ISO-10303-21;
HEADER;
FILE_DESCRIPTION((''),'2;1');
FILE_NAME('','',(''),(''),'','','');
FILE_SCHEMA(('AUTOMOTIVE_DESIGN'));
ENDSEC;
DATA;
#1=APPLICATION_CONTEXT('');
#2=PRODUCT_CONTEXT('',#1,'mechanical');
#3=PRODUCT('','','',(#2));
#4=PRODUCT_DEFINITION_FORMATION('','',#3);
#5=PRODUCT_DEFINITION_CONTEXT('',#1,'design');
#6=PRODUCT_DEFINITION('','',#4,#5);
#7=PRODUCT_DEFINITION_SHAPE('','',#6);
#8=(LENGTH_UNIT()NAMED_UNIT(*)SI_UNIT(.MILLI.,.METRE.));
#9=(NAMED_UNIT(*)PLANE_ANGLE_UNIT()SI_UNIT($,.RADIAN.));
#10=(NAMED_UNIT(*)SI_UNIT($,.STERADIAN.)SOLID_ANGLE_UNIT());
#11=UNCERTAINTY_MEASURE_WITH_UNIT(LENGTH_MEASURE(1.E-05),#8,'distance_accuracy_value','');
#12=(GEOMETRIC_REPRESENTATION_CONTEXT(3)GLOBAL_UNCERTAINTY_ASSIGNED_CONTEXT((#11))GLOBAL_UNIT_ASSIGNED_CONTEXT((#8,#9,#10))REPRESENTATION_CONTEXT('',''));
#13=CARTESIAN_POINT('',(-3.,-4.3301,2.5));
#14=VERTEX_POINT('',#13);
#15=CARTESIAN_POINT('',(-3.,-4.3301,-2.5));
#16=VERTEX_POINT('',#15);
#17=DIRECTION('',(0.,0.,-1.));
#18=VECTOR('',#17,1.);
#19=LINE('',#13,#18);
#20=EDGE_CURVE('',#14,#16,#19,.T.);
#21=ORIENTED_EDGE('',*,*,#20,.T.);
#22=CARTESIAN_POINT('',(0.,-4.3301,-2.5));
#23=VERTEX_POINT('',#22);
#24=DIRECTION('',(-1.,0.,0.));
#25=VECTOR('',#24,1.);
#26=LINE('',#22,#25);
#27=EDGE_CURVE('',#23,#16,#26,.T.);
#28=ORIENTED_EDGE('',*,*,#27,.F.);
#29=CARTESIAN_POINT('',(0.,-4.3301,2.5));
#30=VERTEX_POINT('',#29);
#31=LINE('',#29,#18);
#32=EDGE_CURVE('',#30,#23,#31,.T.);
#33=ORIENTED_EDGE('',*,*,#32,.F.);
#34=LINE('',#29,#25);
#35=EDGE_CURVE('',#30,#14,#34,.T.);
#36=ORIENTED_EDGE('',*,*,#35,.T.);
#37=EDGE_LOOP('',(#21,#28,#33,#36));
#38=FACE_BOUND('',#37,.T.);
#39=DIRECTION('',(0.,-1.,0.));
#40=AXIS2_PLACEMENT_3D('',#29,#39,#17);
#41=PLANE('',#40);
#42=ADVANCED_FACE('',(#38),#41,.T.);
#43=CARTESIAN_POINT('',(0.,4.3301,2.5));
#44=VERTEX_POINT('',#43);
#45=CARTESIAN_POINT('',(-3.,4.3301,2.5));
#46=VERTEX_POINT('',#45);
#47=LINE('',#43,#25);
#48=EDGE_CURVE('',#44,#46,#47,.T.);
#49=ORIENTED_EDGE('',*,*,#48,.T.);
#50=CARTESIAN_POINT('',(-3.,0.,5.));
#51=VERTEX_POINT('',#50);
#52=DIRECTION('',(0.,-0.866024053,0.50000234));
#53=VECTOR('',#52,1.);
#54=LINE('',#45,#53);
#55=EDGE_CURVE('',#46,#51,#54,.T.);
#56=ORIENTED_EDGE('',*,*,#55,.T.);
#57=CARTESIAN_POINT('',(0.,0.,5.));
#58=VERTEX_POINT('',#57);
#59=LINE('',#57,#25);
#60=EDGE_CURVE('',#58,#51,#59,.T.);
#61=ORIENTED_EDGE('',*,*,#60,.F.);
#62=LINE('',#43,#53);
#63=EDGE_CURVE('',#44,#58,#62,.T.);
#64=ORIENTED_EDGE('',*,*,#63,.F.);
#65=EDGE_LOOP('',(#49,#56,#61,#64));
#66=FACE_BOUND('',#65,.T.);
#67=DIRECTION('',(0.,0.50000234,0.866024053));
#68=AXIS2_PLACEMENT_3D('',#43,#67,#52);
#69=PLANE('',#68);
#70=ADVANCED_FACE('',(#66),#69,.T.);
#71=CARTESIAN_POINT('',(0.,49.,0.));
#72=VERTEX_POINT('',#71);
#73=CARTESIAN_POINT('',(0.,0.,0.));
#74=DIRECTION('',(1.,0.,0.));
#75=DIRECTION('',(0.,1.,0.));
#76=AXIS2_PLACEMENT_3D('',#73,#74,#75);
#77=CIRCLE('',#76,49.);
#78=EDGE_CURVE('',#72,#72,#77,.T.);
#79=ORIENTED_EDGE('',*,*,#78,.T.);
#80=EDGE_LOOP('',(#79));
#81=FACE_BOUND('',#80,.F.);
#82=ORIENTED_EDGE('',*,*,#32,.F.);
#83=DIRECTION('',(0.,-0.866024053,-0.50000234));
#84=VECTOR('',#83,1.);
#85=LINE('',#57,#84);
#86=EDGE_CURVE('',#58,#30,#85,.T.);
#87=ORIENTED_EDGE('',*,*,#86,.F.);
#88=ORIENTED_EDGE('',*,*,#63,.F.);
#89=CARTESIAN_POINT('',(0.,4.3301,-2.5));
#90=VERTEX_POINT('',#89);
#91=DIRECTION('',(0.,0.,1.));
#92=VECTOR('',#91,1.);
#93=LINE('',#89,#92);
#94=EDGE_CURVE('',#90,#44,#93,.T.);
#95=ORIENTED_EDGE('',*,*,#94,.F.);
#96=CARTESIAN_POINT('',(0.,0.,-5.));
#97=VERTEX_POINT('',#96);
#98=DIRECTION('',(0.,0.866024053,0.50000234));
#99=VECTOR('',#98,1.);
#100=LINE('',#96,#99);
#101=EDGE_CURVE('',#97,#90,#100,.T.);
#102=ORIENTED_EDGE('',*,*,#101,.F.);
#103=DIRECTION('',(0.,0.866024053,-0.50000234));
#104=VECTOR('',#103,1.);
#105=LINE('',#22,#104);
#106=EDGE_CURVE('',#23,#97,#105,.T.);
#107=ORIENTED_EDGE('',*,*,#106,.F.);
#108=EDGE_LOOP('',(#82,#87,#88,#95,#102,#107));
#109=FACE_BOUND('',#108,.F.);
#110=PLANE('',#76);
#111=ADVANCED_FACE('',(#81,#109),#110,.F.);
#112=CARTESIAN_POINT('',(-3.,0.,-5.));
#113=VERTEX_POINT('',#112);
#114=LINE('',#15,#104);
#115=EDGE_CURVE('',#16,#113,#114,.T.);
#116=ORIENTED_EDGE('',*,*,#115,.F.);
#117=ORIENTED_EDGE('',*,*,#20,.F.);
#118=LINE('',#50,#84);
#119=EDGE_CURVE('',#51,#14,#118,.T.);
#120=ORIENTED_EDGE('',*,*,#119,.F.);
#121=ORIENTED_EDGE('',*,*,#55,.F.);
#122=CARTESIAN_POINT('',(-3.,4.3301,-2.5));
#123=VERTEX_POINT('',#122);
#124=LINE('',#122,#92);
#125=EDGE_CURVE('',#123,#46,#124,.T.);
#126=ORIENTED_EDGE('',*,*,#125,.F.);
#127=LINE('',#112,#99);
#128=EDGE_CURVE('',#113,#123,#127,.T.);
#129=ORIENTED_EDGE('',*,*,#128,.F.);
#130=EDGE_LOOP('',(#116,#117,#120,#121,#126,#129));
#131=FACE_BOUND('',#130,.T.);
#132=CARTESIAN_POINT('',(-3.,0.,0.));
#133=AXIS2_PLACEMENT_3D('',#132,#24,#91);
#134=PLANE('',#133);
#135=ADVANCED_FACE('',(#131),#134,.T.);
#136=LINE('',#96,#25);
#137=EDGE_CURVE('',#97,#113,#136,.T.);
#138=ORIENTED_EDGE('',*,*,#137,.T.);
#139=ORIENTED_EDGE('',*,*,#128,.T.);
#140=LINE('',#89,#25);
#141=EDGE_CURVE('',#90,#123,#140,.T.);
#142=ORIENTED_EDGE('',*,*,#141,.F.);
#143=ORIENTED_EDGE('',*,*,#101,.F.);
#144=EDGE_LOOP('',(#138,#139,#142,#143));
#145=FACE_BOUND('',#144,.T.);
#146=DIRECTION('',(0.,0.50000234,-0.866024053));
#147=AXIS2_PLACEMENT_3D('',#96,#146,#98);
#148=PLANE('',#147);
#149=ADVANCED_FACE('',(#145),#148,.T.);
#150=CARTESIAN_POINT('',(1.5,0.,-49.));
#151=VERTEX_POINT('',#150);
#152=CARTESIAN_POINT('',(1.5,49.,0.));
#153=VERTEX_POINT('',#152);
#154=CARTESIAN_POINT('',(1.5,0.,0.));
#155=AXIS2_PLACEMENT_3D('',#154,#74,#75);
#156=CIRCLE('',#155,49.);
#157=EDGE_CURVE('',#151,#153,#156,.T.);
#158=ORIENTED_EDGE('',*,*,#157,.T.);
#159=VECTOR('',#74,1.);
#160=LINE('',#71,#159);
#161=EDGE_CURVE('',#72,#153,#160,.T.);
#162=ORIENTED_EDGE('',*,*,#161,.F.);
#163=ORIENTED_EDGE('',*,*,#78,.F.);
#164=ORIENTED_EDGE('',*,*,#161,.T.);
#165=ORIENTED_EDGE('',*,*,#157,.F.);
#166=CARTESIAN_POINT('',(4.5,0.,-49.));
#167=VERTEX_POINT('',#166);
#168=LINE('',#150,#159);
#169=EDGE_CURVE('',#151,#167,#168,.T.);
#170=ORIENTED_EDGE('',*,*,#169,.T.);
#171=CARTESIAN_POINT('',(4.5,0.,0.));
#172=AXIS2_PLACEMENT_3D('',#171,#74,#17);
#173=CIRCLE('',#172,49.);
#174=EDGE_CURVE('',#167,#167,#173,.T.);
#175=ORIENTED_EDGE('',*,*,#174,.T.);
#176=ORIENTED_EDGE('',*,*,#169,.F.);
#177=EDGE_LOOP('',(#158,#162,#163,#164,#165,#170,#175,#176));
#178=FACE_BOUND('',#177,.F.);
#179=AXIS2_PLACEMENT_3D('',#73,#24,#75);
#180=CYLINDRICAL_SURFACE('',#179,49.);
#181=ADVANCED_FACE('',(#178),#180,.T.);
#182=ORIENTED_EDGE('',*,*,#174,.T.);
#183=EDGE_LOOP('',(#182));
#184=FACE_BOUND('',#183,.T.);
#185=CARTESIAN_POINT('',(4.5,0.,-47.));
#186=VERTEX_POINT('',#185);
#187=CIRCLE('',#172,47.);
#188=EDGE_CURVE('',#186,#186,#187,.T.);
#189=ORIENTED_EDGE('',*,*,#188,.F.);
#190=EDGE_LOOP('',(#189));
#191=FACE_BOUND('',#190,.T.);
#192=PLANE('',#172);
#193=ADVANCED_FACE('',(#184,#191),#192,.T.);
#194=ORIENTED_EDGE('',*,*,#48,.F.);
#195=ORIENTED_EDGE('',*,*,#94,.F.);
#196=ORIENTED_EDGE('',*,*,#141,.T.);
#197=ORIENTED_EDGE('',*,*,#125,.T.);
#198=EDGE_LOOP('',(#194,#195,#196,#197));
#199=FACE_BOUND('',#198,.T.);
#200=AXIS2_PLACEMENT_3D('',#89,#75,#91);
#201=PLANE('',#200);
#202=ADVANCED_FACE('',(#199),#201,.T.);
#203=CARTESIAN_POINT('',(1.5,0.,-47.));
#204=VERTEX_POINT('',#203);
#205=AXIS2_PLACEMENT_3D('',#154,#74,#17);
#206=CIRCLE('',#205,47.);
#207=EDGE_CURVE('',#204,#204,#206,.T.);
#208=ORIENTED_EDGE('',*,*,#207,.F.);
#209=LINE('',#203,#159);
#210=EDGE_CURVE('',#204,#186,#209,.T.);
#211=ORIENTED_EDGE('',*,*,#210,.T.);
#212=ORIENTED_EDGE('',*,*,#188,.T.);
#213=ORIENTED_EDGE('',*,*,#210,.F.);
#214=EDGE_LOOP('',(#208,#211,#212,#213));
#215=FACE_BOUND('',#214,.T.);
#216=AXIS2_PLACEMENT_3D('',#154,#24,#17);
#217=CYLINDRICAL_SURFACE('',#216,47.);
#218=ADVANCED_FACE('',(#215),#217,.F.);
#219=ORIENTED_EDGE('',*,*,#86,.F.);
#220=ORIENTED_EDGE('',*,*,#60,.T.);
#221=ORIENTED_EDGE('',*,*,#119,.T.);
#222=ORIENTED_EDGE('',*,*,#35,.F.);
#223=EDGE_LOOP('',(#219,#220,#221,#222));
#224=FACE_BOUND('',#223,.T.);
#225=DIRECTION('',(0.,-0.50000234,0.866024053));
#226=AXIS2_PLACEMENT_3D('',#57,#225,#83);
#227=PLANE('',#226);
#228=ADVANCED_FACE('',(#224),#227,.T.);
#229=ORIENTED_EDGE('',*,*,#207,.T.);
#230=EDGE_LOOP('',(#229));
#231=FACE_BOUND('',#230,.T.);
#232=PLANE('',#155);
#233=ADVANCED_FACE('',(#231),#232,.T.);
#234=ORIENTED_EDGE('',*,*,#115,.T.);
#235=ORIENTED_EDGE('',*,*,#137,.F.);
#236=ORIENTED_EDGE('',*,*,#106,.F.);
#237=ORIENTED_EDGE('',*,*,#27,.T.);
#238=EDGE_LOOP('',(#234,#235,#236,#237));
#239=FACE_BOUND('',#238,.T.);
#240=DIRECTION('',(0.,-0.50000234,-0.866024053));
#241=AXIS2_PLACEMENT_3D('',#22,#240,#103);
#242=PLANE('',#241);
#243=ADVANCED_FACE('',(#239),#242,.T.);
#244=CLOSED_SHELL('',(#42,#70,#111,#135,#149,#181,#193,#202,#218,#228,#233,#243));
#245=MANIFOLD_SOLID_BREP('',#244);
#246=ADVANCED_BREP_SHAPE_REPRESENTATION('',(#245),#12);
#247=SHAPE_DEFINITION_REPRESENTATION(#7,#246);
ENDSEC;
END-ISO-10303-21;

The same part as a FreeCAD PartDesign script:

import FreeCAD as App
import Part
import Sketcher
from FreeCAD import Vector
Q = App.Units.Quantity


def add_polygon(sketch, points):
    """Adds a closed chain of lines whose ends are joined by coincident constraints."""
    first, n = sketch.GeometryCount, len(points)
    for a, b in zip(points, points[1:] + points[:1]):
        sketch.addGeometry(Part.LineSegment(App.Vector(*a, 0), App.Vector(*b, 0)), False)
    for i in range(n):
        sketch.addConstraint(Sketcher.Constraint("Coincident", first + i, 2, first + (i + 1) % n, 1))

doc = App.newDocument("Part")
body = doc.addObject("PartDesign::Body", "Body")

sketch1 = body.newObject("Sketcher::SketchObject", "Sketch")
sketch1.AttachmentSupport = (doc.getObject("YZ_Plane"), [""])
sketch1.MapMode = "FlatFace"
sketch1.addGeometry(Part.Circle(Vector(0, 0, 0), Vector(0, 0, 1), 49), False)
sketch1.addConstraint([
    Sketcher.Constraint("Coincident", 0, 3, -1, 1),
    Sketcher.Constraint("Diameter", 0, 98.0),
])
pad1 = body.newObject("PartDesign::Pad", "Pad")
pad1.Profile = sketch1
pad1.Length = 1.5

sketch2 = body.newObject("Sketcher::SketchObject", "Sketch001")
sketch2.AttachmentSupport = (doc.getObject("YZ_Plane"), [""])
sketch2.MapMode = "FlatFace"
sketch2.AttachmentOffset = App.Placement(Vector(0, 0, 1.5), App.Rotation())
sketch2.addGeometry([
    Part.Circle(Vector(0, 0, 0), Vector(0, 0, 1), 49),
    Part.Circle(Vector(0, 0, 0), Vector(0, 0, 1), 47),
], False)
sketch2.addConstraint([
    Sketcher.Constraint("Coincident", 0, 3, -1, 1),
    Sketcher.Constraint("Coincident", 1, 3, -1, 1),
    Sketcher.Constraint("Diameter", 0, 98.0),
    Sketcher.Constraint("Diameter", 1, 94.0),
])
pad2 = body.newObject("PartDesign::Pad", "Pad001")
pad2.Profile = sketch2
pad2.Length = 3

sketch3 = body.newObject("Sketcher::SketchObject", "Sketch002")
sketch3.AttachmentSupport = (doc.getObject("YZ_Plane"), [""])
sketch3.MapMode = "FlatFace"
add_polygon(sketch3, [(-4.3, 2.5), (0, 5), (4.3, 2.5), (4.3, -2.5), (0, -5), (-4.3, -2.5)])
sketch3.addConstraint([
    Sketcher.Constraint("Vertical", 2),
    Sketcher.Constraint("Vertical", 5),
    Sketcher.Constraint("Symmetric", 0, 2, 3, 2, -1, 1),
    Sketcher.Constraint("Symmetric", 1, 2, 4, 2, -1, 1),
    Sketcher.Constraint("PointOnObject", 0, 2, -2),
    Sketcher.Constraint("Parallel", 0, 3),
    Sketcher.Constraint("Horizontal", 2, 2, 4, 2),
    Sketcher.Constraint("DistanceY", 3, 2, 0, 2, 10.0),
    Sketcher.Constraint("DistanceY", 2, 2, 2, 1, 5.0),
    Sketcher.Constraint("Angle", 0, Q("30.0002 deg")),
])
pad3 = body.newObject("PartDesign::Pad", "Pad002")
pad3.Profile = sketch3
pad3.Length = 3
pad3.Reversed = True

doc.recompute()
